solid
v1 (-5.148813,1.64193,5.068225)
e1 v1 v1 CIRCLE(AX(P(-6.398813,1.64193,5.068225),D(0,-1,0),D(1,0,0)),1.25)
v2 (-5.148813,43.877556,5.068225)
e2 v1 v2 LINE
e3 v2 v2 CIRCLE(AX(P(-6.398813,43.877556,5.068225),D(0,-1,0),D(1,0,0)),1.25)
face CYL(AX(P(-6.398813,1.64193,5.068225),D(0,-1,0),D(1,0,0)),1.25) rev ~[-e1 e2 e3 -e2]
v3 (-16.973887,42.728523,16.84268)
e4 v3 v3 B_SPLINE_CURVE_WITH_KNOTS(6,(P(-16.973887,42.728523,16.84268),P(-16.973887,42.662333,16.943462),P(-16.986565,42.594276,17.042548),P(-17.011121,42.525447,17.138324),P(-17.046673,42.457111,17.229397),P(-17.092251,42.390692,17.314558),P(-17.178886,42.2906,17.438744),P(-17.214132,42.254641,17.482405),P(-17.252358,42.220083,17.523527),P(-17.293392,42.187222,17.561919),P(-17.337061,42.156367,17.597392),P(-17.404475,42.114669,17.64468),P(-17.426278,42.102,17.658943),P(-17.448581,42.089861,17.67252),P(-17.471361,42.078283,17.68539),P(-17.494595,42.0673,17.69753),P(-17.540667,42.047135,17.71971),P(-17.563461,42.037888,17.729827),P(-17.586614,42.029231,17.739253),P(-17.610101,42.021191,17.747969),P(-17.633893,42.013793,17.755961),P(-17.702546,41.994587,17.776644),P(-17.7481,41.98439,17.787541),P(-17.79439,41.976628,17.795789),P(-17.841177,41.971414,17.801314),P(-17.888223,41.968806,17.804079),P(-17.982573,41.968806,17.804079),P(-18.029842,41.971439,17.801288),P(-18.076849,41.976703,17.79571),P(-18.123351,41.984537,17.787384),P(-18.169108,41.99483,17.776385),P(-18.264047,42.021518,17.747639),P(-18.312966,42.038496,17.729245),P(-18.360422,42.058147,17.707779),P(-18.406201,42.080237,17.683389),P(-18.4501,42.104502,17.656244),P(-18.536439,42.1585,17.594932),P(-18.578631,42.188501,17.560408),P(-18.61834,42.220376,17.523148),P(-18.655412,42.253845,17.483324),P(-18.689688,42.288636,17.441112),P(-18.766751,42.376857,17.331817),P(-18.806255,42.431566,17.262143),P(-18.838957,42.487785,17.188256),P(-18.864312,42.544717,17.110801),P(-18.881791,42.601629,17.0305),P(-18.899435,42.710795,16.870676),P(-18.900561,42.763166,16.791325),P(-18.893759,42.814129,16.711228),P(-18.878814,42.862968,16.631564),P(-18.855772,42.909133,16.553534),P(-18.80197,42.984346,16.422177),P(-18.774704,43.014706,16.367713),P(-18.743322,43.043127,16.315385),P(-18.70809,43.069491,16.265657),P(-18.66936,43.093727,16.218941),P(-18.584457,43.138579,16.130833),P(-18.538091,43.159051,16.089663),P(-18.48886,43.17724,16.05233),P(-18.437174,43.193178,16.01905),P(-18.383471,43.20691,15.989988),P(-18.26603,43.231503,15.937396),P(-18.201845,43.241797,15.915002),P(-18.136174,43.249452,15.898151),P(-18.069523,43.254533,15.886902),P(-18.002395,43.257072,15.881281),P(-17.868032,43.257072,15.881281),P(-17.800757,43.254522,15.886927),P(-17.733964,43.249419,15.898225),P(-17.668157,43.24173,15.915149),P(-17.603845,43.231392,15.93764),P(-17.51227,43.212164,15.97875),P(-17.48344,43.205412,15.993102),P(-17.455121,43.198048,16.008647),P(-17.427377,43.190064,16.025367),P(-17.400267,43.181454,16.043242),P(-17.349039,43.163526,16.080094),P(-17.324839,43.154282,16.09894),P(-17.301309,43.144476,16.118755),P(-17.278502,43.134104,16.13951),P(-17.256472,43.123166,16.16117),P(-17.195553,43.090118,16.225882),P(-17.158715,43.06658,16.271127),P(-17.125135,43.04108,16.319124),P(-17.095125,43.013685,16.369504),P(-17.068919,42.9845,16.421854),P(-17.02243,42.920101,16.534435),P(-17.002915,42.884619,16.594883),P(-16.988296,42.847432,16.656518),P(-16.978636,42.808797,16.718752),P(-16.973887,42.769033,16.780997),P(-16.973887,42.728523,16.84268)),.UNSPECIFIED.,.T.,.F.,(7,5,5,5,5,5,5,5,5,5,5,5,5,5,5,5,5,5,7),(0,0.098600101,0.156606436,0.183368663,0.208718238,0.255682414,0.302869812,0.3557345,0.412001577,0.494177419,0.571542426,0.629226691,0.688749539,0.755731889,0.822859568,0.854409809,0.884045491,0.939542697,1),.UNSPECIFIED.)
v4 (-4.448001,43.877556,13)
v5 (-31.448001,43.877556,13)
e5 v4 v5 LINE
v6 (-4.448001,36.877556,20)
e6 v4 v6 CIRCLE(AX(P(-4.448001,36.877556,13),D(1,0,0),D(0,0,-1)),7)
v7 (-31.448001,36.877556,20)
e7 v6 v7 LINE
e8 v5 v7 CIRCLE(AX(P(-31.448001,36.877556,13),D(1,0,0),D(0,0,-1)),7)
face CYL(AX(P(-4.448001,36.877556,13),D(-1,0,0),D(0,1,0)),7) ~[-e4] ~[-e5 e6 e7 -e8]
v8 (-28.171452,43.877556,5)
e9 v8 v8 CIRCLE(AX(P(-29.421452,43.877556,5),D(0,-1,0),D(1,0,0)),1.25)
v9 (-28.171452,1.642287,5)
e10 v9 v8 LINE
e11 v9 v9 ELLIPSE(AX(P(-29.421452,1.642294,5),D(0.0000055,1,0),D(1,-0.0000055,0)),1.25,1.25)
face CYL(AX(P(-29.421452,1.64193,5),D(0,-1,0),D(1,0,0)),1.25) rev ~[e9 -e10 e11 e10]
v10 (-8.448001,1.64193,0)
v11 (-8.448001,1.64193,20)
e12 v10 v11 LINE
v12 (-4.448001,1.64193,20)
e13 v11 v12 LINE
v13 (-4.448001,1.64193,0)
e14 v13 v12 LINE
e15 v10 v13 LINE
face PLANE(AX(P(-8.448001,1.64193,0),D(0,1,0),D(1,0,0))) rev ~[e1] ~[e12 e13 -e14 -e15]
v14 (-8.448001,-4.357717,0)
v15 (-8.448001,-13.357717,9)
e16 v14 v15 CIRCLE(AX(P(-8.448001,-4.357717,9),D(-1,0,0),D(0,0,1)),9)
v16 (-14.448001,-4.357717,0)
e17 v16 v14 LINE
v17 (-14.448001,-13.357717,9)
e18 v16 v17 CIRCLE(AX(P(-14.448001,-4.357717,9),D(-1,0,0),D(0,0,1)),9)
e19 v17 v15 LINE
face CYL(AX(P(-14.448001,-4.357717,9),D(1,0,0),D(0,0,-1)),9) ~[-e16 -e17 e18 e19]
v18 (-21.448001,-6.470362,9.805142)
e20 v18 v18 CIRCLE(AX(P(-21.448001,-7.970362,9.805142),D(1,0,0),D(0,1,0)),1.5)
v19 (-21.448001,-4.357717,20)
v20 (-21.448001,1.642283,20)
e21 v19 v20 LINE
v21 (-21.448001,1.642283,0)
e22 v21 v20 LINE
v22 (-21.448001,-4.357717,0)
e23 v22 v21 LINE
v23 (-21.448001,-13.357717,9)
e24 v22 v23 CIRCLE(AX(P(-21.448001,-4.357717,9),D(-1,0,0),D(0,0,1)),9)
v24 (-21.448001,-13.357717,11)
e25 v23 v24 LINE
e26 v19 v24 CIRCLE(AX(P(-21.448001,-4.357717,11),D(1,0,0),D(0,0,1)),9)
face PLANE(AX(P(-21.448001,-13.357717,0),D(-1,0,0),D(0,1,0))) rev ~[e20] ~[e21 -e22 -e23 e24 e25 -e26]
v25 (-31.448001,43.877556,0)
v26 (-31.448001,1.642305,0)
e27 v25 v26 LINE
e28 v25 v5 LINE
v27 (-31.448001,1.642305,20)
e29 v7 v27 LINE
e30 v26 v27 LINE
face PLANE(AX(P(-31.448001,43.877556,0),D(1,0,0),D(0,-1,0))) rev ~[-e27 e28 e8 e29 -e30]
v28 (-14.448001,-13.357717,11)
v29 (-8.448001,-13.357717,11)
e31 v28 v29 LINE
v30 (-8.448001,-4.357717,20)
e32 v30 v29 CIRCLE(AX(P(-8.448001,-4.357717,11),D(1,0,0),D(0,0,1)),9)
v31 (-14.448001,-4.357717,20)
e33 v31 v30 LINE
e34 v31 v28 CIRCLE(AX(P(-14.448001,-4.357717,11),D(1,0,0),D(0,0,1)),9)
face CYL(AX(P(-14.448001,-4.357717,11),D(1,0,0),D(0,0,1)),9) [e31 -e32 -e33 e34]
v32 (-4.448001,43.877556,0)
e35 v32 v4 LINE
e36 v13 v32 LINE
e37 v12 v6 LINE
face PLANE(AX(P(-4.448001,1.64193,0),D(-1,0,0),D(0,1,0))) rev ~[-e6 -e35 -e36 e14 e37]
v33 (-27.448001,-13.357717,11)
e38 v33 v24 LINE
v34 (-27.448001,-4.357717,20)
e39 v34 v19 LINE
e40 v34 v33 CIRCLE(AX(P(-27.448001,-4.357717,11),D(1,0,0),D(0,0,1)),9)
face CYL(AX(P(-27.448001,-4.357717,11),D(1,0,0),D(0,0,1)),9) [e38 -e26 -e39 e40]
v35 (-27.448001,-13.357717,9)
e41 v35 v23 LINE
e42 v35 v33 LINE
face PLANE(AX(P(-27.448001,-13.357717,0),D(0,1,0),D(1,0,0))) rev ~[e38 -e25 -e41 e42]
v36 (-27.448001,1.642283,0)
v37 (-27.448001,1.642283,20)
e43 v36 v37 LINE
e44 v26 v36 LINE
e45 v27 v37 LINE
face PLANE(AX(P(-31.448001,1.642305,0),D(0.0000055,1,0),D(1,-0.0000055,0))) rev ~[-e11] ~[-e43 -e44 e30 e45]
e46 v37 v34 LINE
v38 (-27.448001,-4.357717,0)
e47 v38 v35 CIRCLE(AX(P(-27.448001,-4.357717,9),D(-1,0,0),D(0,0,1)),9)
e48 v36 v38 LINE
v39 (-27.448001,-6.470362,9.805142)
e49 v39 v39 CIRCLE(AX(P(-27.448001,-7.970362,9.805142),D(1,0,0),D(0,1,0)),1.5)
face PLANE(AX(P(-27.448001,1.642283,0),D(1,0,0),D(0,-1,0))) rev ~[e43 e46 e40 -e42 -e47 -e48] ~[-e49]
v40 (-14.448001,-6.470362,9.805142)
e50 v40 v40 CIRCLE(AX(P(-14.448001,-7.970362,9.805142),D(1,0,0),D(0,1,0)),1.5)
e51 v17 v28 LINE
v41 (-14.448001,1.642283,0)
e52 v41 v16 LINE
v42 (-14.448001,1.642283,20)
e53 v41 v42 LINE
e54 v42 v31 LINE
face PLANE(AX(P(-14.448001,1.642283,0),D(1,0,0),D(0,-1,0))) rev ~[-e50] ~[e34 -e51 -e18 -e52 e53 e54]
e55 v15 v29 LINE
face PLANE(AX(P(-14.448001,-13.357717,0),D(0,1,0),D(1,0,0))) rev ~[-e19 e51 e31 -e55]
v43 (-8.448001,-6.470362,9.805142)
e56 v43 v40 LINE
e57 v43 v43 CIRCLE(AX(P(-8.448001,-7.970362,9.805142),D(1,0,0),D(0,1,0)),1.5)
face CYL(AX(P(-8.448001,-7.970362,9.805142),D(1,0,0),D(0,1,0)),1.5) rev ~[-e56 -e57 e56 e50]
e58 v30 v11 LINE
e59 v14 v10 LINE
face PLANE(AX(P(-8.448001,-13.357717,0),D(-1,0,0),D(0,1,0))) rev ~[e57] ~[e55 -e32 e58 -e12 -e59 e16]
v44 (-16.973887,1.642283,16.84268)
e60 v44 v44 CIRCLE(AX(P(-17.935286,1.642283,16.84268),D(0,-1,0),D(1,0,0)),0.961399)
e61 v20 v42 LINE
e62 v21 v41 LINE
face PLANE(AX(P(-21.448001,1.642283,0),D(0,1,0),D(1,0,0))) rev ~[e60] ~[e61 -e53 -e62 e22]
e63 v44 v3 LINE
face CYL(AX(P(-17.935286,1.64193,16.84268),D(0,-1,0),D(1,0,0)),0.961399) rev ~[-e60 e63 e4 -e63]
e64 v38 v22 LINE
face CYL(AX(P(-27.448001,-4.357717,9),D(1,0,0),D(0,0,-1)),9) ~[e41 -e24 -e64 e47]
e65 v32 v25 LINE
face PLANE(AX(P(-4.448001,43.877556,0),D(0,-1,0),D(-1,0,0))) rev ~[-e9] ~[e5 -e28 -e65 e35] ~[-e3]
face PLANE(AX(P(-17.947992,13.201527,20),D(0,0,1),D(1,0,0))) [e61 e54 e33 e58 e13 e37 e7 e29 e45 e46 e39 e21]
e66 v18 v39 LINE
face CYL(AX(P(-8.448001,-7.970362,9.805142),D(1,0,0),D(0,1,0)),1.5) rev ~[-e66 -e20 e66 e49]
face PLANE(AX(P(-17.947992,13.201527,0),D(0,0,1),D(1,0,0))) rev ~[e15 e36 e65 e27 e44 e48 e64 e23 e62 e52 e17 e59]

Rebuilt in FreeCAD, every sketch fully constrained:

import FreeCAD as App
import Part
import Sketcher

V = App.Vector
Q = App.Units.Quantity


def edges_at(feature, points):
    """Names of the edges that pass closest to the given points."""
    edges = feature.Shape.Edges
    near = lambda p: min(range(len(edges)), key=lambda i: edges[i].distToShape(Part.Vertex(*p))[0])
    return sorted({f"Edge{near(p) + 1}" for p in points})

doc = App.newDocument("Part")
params = doc.addObject("Spreadsheet::Sheet", "Params")
for row, (alias, value) in enumerate([
    ("sketch1_width", "6 mm"),
    ("sketch1_width2", "7 mm"),
    ("sketch1_width3", "4 mm"),
    ("sketch1_width4", "27 mm"),
    ("sketch1_height", "15 mm"),
    ("pad1_length", "20 mm"),
    ("fillet_radius", "7 mm"),
    ("sketch2_diameter", "3 mm"),
    ("sketch3_diameter", "2.5 mm"),
    ("fillet2_radius", "9 mm"),
    ("fillet3_radius", "9 mm"),
    ("fillet4_radius", "9 mm"),
    ("fillet5_radius", "9 mm"),
], start=1):
    params.set(f"A{row}", alias)
    params.set(f"B{row}", "=" + value)
    params.setAlias(f"B{row}", alias)

body = doc.addObject("PartDesign::Body", "Body")

sketch1 = body.newObject("Sketcher::SketchObject", "Sketch")
sketch1.AttachmentSupport = (doc.getObject("XY_Plane"), [""])
sketch1.MapMode = "FlatFace"
sketch1.addGeometry(Part.LineSegment(V(-31.448001, 43.877556, 0), V(-31.448001, 1.642305, 0)), False)
sketch1.addGeometry(Part.LineSegment(V(-31.448001, 1.642305, 0), V(-27.448001, 1.642283, 0)), False)
sketch1.addGeometry(Part.LineSegment(V(-27.448001, 1.642283, 0), V(-27.448001, -13.357717, 0)), False)
sketch1.addGeometry(Part.LineSegment(V(-27.448001, -13.357717, 0), V(-21.448001, -13.357717, 0)), False)
sketch1.addGeometry(Part.LineSegment(V(-21.448001, -13.357717, 0), V(-21.448001, 1.642283, 0)), False)
sketch1.addGeometry(Part.LineSegment(V(-21.448001, 1.642283, 0), V(-14.448001, 1.642283, 0)), False)
sketch1.addGeometry(Part.LineSegment(V(-14.448001, 1.642283, 0), V(-14.448001, -13.357717, 0)), False)
sketch1.addGeometry(Part.LineSegment(V(-14.448001, -13.357717, 0), V(-8.448001, -13.357717, 0)), False)
sketch1.addGeometry(Part.LineSegment(V(-8.448001, -13.357717, 0), V(-8.448001, 1.64193, 0)), False)
sketch1.addGeometry(Part.LineSegment(V(-8.448001, 1.64193, 0), V(-4.448001, 1.64193, 0)), False)
sketch1.addGeometry(Part.LineSegment(V(-4.448001, 1.64193, 0), V(-4.448001, 43.877556, 0)), False)
sketch1.addGeometry(Part.LineSegment(V(-4.448001, 43.877556, 0), V(-31.448001, 43.877556, 0)), False)
sketch1.addConstraint(Sketcher.Constraint("Coincident", 0, 2, 1, 1))
sketch1.addConstraint(Sketcher.Constraint("Coincident", 1, 2, 2, 1))
sketch1.addConstraint(Sketcher.Constraint("Coincident", 2, 2, 3, 1))
sketch1.addConstraint(Sketcher.Constraint("Coincident", 3, 2, 4, 1))
sketch1.addConstraint(Sketcher.Constraint("Coincident", 4, 2, 5, 1))
sketch1.addConstraint(Sketcher.Constraint("Coincident", 5, 2, 6, 1))
sketch1.addConstraint(Sketcher.Constraint("Coincident", 6, 2, 7, 1))
sketch1.addConstraint(Sketcher.Constraint("Coincident", 7, 2, 8, 1))
sketch1.addConstraint(Sketcher.Constraint("Coincident", 8, 2, 9, 1))
sketch1.addConstraint(Sketcher.Constraint("Coincident", 9, 2, 10, 1))
sketch1.addConstraint(Sketcher.Constraint("Coincident", 10, 2, 11, 1))
sketch1.addConstraint(Sketcher.Constraint("Coincident", 11, 2, 0, 1))
sketch1.addConstraint(Sketcher.Constraint("Vertical", 0))
sketch1.addConstraint(Sketcher.Constraint("Vertical", 2))
sketch1.addConstraint(Sketcher.Constraint("Horizontal", 3))
sketch1.addConstraint(Sketcher.Constraint("Vertical", 4))
sketch1.addConstraint(Sketcher.Constraint("Horizontal", 5))
sketch1.addConstraint(Sketcher.Constraint("Vertical", 6))
sketch1.addConstraint(Sketcher.Constraint("Horizontal", 7))
sketch1.addConstraint(Sketcher.Constraint("Vertical", 8))
sketch1.addConstraint(Sketcher.Constraint("Horizontal", 9))
sketch1.addConstraint(Sketcher.Constraint("Vertical", 10))
sketch1.addConstraint(Sketcher.Constraint("Horizontal", 11))
sketch1.addConstraint(Sketcher.Constraint("Horizontal", 1, 2, 4, 2))
sketch1.addConstraint(Sketcher.Constraint("Horizontal", 3, 2, 6, 2))
sketch1.addConstraint(Sketcher.Constraint("Equal", 3, 7))
sketch1.addConstraint(Sketcher.Constraint("DistanceX", 3, 1, 3, 2, Q("6 mm")))
sketch1.addConstraint(Sketcher.Constraint("DistanceX", 5, 1, 5, 2, Q("7 mm")))
sketch1.addConstraint(Sketcher.Constraint("DistanceX", 9, 1, 9, 2, Q("4 mm")))
sketch1.addConstraint(Sketcher.Constraint("DistanceX", 11, 2, 11, 1, Q("27 mm")))
sketch1.addConstraint(Sketcher.Constraint("DistanceY", 2, 2, 2, 1, Q("15 mm")))
sketch1.addConstraint(Sketcher.Constraint("DistanceX", 0, 2, -1, 1, Q("31.448001 mm")))
sketch1.addConstraint(Sketcher.Constraint("DistanceY", 0, 2, 0, 1, Q("42.235251 mm")))
sketch1.addConstraint(Sketcher.Constraint("DistanceY", 8, 1, 8, 2, Q("14.999647 mm")))
sketch1.addConstraint(Sketcher.Constraint("DistanceY", 10, 1, 10, 2, Q("42.235626 mm")))
sketch1.addConstraint(Sketcher.Constraint("DistanceY", -1, 1, 8, 2, Q("1.64193 mm")))
sketch1.setExpression("Constraints[26]", "Params.sketch1_width")
sketch1.setExpression("Constraints[27]", "Params.sketch1_width2")
sketch1.setExpression("Constraints[28]", "Params.sketch1_width3")
sketch1.setExpression("Constraints[29]", "Params.sketch1_width4")
sketch1.setExpression("Constraints[30]", "Params.sketch1_height")
pad1 = body.newObject("PartDesign::Pad", "Pad")
pad1.Profile = sketch1
pad1.setExpression("Length", "Params.pad1_length")
doc.recompute()

fillet = body.newObject("PartDesign::Fillet", "Fillet")
fillet.Base = (pad1, edges_at(pad1, [(-17.948, 43.878, 20)]))
fillet.setExpression("Radius", "Params.fillet_radius")

sketch2 = body.newObject("Sketcher::SketchObject", "Sketch001")
sketch2.AttachmentSupport = (doc.getObject("YZ_Plane"), [""])
sketch2.MapMode = "FlatFace"
sketch2.AttachmentOffset = App.Placement(V(0, 0, -8.448001), App.Rotation())
sketch2.addGeometry(Part.Circle(V(-7.970362, 9.805142, 0), V(0, 0, 1), 1.5), False)
sketch2.addConstraint(Sketcher.Constraint("Diameter", 0, Q("3 mm")))
sketch2.addConstraint(Sketcher.Constraint("DistanceX", 0, 3, -1, 1, Q("7.970362 mm")))
sketch2.addConstraint(Sketcher.Constraint("DistanceY", -1, 1, 0, 3, Q("9.805142 mm")))
sketch2.setExpression("Constraints[0]", "Params.sketch2_diameter")
pocket1 = body.newObject("PartDesign::Pocket", "Pocket")
pocket1.Profile = sketch2
pocket1.Type = "ThroughAll"

sketch3 = body.newObject("Sketcher::SketchObject", "Sketch002")
sketch3.AttachmentSupport = (doc.getObject("XZ_Plane"), [""])
sketch3.MapMode = "FlatFace"
sketch3.AttachmentOffset = App.Placement(V(0, 0, -1.64193), App.Rotation())
sketch3.addGeometry(Part.Circle(V(-6.398813, 5.068225, 0), V(0, 0, 1), 1.25), False)
sketch3.addGeometry(Part.Circle(V(-29.421452, 5, 0), V(0, 0, 1), 1.25), False)
sketch3.addGeometry(Part.Circle(V(-17.935286, 16.84268, 0), V(0, 0, 1), 0.961399), False)
sketch3.addConstraint(Sketcher.Constraint("Equal", 0, 1))
sketch3.addConstraint(Sketcher.Constraint("Diameter", 0, Q("2.5 mm")))
sketch3.addConstraint(Sketcher.Constraint("DistanceY", -1, 1, 1, 3, Q("5 mm")))
sketch3.addConstraint(Sketcher.Constraint("Diameter", 2, Q("1.922798 mm")))
sketch3.addConstraint(Sketcher.Constraint("DistanceX", 1, 3, -1, 1, Q("29.421452 mm")))
sketch3.addConstraint(Sketcher.Constraint("DistanceY", -1, 1, 2, 3, Q("16.84268 mm")))
sketch3.addConstraint(Sketcher.Constraint("DistanceX", 1, 3, 0, 3, Q("23.022639 mm")))
sketch3.addConstraint(Sketcher.Constraint("DistanceY", -1, 1, 0, 3, Q("5.068225 mm")))
sketch3.addConstraint(Sketcher.Constraint("DistanceX", 2, 3, -1, 1, Q("17.935286 mm")))
sketch3.setExpression("Constraints[1]", "Params.sketch3_diameter")
pocket2 = body.newObject("PartDesign::Pocket", "Pocket001")
pocket2.Profile = sketch3
pocket2.Type = "ThroughAll"
doc.recompute()

fillet2 = body.newObject("PartDesign::Fillet", "Fillet001")
fillet2.Base = (pocket2, edges_at(pocket2, [(-11.448, -13.358, 20)]))
fillet2.setExpression("Radius", "Params.fillet2_radius")
doc.recompute()

fillet3 = body.newObject("PartDesign::Fillet", "Fillet002")
fillet3.Base = (fillet2, edges_at(fillet2, [(-24.448, -13.358, 20)]))
fillet3.setExpression("Radius", "Params.fillet3_radius")
doc.recompute()

fillet4 = body.newObject("PartDesign::Fillet", "Fillet003")
fillet4.Base = (fillet3, edges_at(fillet3, [(-11.448, -13.358, 0)]))
fillet4.setExpression("Radius", "Params.fillet4_radius")
doc.recompute()

fillet5 = body.newObject("PartDesign::Fillet", "Fillet004")
fillet5.Base = (fillet4, edges_at(fillet4, [(-24.448, -13.358, 0)]))
fillet5.setExpression("Radius", "Params.fillet5_radius")

doc.recompute()
